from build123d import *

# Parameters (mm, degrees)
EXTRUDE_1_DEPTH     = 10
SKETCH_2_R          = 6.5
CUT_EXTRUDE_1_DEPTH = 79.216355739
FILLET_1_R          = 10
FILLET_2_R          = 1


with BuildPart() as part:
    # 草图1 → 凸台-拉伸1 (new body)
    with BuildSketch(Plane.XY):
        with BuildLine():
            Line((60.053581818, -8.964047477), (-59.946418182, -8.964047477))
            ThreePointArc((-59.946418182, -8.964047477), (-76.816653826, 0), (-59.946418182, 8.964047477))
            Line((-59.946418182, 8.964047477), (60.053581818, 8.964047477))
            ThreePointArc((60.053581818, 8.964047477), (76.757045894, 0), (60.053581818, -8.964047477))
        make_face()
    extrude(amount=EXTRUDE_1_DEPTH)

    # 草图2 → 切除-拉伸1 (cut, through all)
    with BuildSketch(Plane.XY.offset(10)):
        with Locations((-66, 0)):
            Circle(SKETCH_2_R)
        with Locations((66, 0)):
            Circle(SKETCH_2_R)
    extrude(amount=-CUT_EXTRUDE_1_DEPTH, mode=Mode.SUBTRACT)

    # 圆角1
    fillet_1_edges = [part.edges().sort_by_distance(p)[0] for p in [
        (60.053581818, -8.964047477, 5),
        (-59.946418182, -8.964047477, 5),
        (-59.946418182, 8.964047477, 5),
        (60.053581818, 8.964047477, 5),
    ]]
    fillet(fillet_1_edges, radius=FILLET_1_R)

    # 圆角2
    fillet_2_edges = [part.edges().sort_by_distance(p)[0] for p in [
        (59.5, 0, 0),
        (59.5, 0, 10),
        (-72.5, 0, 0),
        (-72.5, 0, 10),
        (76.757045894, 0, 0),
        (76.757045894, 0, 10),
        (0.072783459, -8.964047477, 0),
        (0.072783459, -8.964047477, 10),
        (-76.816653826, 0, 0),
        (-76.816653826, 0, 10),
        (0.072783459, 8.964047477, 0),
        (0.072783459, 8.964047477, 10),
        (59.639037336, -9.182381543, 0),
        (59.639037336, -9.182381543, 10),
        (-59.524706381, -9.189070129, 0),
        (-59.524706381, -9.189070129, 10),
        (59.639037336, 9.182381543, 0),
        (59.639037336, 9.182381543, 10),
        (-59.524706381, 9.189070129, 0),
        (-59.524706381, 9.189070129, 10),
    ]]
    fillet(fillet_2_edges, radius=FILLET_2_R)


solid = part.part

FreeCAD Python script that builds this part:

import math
import FreeCAD as App
import Part
import Sketcher

V = App.Vector


def edges_at(feature, points):
    """Names of the edges that pass closest to the given points."""
    edges = feature.Shape.Edges
    near = lambda p: min(range(len(edges)), key=lambda i: edges[i].distToShape(Part.Vertex(*p))[0])
    return sorted({f"Edge{near(p) + 1}" for p in points})

doc = App.newDocument("Part")
params = doc.addObject("Spreadsheet::Sheet", "Params")
for row, (alias, value) in enumerate([
    ("sketch1_width", "120 mm"),
    ("pad1_length", "10 mm"),
    ("sketch2_diameter", "13 mm"),
    ("fillet_radius", "10 mm"),
    ("fillet2_radius", "1 mm"),
], start=1):
    params.set(f"A{row}", alias)
    params.set(f"B{row}", "=" + value)
    params.setAlias(f"B{row}", alias)

body = doc.addObject("PartDesign::Body", "Body")

# Sketch on XY plane
sketch1 = body.newObject("Sketcher::SketchObject", "Sketch")
sketch1.AttachmentSupport = (doc.getObject("XY_Plane"), [""])
sketch1.MapMode = "FlatFace"
sketch1.addGeometry(Part.LineSegment(V(-60, -9, 0), V(60, -9, 0)), False)
sketch1.addGeometry(Part.ArcOfCircle(Part.Circle(V(66, 0, 0), V(0, 0, 1), 11), math.radians(-124), math.radians(124)), False)
sketch1.addGeometry(Part.LineSegment(V(60, 9, 0), V(-60, 9, 0)), False)
sketch1.addGeometry(Part.ArcOfCircle(Part.Circle(V(-66, 0, 0), V(0, 0, 1), 11), math.radians(56), math.radians(304)), False)
sketch1.addConstraint(Sketcher.Constraint("Coincident", 0, 2, 1, 1))
sketch1.addConstraint(Sketcher.Constraint("Coincident", 1, 2, 2, 1))
sketch1.addConstraint(Sketcher.Constraint("Coincident", 2, 2, 3, 1))
sketch1.addConstraint(Sketcher.Constraint("Coincident", 3, 2, 0, 1))
sketch1.addConstraint(Sketcher.Constraint("Horizontal", 0))
sketch1.addConstraint(Sketcher.Constraint("Horizontal", 2))
sketch1.addConstraint(Sketcher.Constraint("Symmetric", 1, 3, 3, 3, -1, 1))
sketch1.addConstraint(Sketcher.Constraint("Symmetric", 0, 2, 1, 2, -1))
sketch1.addConstraint(Sketcher.Constraint("DistanceX", 0, 1, 0, 2, 120.0))
sketch1.addConstraint(Sketcher.Constraint("DistanceX", -1, 1, 1, 3, 66.0))
sketch1.addConstraint(Sketcher.Constraint("Radius", 1, 10.757046))
sketch1.addConstraint(Sketcher.Constraint("Radius", 3, 10.816654))
sketch1.setExpression("Constraints[8]", "Params.sketch1_width")
pad1 = body.newObject("PartDesign::Pad", "Pad")
pad1.Profile = sketch1
pad1.setExpression("Length", "Params.pad1_length")

# Sketch on XY plane
sketch2 = body.newObject("Sketcher::SketchObject", "Sketch001")
sketch2.AttachmentSupport = (doc.getObject("XY_Plane"), [""])
sketch2.MapMode = "FlatFace"
sketch2.AttachmentOffset = App.Placement(V(0, 0, 10), App.Rotation())
sketch2.addGeometry(Part.Circle(V(-66, 0, 0), V(0, 0, 1), 6), False)
sketch2.addGeometry(Part.Circle(V(66, 0, 0), V(0, 0, 1), 6), False)
sketch2.addConstraint(Sketcher.Constraint("Equal", 0, 1))
sketch2.addConstraint(Sketcher.Constraint("Symmetric", 0, 3, 1, 3, -1, 1))
sketch2.addConstraint(Sketcher.Constraint("PointOnObject", 0, 3, -1))
sketch2.addConstraint(Sketcher.Constraint("Diameter", 0, 13.0))
sketch2.addConstraint(Sketcher.Constraint("DistanceX", 0, 3, -1, 1, 66.0))
sketch2.setExpression("Constraints[3]", "Params.sketch2_diameter")
pocket1 = body.newObject("PartDesign::Pocket", "Pocket")
pocket1.Profile = sketch2
pocket1.Type = "ThroughAll"
doc.recompute()

fillet = body.newObject("PartDesign::Fillet", "Fillet")
fillet.Base = (pocket1, edges_at(pocket1, [
    (60.054, -8.964, 5),
    (-59.946, -8.964, 5),
    (-59.946, 8.964, 5),
    (60.054, 8.964, 5),
]))
fillet.setExpression("Radius", "Params.fillet_radius")
doc.recompute()

fillet2 = body.newObject("PartDesign::Fillet", "Fillet001")
fillet2.Base = (fillet, edges_at(fillet, [
    (59.5, 0, 0),
    (59.5, 0, 10),
    (-72.5, 0, 0),
    (-72.5, 0, 10),
    (76.757, 0, 0),
    (76.757, 0, 10),
    (0.073, -8.964, 0),
    (0.073, -8.964, 10),
    (-76.817, 0, 0),
    (-76.817, 0, 10),
    (0.073, 8.964, 0),
    (0.073, 8.964, 10),
    (59.639, -9.182, 0),
    (59.639, -9.182, 10),
    (-59.525, -9.189, 0),
    (-59.525, -9.189, 10),
    (59.639, 9.182, 0),
    (59.639, 9.182, 10),
    (-59.525, 9.189, 0),
    (-59.525, 9.189, 10),
]))
fillet2.setExpression("Radius", "Params.fillet2_radius")

doc.recompute()
